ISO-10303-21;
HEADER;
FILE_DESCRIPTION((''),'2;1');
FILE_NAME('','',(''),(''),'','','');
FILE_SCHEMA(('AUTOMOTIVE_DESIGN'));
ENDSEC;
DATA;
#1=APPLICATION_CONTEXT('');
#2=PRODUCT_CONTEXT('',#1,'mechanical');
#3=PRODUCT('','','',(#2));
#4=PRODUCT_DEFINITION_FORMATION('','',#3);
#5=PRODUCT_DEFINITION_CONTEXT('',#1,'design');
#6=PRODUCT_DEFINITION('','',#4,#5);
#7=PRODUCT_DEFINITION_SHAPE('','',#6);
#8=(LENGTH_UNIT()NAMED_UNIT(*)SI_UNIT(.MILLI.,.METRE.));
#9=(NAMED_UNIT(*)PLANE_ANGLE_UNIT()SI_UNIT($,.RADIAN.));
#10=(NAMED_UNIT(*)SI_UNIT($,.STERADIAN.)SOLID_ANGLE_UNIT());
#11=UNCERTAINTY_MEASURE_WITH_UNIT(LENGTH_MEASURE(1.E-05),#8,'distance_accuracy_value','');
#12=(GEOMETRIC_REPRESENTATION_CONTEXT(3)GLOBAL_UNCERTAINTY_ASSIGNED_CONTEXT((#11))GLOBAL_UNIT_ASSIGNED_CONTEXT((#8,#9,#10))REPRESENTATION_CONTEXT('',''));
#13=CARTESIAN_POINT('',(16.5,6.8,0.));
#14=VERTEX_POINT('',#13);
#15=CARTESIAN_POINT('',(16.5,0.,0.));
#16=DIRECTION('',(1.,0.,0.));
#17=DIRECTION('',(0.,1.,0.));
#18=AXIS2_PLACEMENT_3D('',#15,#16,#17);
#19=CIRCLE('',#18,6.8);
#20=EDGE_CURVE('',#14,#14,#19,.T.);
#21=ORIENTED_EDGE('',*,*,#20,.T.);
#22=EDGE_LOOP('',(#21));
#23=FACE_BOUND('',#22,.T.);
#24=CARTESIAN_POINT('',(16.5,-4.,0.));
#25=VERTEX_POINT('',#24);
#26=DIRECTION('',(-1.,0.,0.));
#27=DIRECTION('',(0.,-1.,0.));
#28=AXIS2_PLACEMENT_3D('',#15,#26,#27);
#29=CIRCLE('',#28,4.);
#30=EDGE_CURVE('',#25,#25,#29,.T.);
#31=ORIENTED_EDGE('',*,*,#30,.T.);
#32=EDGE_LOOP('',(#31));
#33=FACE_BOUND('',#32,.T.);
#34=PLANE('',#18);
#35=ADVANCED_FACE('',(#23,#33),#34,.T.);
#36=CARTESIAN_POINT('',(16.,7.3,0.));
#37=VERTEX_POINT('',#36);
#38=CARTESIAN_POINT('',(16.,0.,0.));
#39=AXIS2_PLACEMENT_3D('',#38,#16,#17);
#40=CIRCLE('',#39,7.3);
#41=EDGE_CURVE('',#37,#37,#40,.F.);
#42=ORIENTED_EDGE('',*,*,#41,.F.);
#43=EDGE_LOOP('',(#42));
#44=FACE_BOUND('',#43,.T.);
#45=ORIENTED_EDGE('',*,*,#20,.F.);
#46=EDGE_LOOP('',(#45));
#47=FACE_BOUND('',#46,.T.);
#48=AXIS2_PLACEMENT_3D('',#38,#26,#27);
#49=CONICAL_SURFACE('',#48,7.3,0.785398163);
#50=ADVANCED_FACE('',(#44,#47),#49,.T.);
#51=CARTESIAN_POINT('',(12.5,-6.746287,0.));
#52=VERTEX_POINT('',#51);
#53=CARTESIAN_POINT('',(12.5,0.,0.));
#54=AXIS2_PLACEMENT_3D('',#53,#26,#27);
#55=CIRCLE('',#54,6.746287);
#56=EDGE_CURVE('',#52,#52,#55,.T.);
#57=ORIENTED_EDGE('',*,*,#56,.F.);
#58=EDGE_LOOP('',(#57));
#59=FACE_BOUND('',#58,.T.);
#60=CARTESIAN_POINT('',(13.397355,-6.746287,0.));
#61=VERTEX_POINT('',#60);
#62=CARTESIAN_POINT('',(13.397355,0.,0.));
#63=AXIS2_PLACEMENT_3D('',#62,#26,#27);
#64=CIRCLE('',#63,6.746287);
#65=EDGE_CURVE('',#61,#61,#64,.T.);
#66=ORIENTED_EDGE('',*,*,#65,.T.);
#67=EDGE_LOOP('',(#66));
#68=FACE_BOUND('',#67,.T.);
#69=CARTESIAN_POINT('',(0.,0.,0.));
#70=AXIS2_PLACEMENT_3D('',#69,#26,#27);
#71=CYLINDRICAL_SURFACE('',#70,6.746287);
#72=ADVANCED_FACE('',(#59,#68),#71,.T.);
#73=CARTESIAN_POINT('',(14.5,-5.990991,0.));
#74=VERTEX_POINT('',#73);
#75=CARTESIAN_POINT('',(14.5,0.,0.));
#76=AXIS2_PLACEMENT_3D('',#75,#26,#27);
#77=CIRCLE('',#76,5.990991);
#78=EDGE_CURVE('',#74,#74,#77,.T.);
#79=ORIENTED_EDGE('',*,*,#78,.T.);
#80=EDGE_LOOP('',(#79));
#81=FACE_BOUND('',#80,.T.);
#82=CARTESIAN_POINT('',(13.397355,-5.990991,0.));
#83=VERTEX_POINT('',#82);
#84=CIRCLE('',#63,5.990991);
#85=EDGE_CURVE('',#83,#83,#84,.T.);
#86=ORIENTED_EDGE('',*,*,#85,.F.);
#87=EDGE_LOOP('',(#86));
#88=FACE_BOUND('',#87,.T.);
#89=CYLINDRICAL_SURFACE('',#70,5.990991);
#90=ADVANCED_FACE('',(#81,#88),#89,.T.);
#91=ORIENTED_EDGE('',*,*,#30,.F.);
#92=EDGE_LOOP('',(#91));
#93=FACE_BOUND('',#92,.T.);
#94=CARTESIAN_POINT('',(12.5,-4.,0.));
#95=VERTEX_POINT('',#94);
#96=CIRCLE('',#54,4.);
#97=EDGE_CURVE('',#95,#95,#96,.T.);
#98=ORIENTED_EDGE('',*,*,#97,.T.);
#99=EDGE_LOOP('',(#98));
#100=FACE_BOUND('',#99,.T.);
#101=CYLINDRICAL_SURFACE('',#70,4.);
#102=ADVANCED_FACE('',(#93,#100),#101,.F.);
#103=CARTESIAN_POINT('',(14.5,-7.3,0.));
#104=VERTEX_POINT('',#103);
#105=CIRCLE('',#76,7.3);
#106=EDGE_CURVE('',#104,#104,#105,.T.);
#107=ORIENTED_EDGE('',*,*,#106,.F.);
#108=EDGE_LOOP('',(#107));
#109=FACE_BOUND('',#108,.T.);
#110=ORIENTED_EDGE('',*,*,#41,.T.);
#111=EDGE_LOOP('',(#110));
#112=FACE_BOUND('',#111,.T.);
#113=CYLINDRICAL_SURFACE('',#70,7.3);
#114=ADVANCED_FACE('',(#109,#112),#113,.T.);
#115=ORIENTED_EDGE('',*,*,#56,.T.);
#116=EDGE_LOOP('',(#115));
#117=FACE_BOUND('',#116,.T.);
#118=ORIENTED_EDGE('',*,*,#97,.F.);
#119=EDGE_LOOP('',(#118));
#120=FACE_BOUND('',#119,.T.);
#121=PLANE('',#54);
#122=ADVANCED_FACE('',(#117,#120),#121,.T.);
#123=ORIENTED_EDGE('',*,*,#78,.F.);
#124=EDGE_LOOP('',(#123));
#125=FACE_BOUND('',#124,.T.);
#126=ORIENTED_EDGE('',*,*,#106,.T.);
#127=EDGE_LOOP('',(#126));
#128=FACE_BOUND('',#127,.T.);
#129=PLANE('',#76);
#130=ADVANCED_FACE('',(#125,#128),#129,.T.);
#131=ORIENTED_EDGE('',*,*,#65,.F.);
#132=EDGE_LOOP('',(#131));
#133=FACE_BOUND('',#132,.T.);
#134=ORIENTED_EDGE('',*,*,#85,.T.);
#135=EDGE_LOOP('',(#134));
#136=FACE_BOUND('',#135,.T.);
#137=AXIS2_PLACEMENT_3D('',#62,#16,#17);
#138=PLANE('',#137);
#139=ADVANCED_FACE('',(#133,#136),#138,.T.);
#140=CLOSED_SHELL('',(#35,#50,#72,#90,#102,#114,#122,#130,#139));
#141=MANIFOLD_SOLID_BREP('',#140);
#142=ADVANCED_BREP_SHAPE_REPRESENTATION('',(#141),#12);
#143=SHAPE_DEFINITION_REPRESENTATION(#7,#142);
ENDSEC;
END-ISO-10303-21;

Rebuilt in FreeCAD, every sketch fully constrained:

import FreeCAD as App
import Part
import Sketcher
from FreeCAD import Vector


def edges_at(feature, points):
    """Names of the edges that pass closest to the given points."""
    edges = feature.Shape.Edges
    near = lambda p: min(range(len(edges)), key=lambda i: edges[i].distToShape(Part.Vertex(*p))[0])
    return sorted({f"Edge{near(p) + 1}" for p in points})

doc = App.newDocument("Part")
body = doc.addObject("PartDesign::Body", "Body")

sketch1 = body.newObject("Sketcher::SketchObject", "Sketch")
sketch1.AttachmentSupport = (doc.getObject("XY_Plane"), [""])
sketch1.MapMode = "FlatFace"
sketch1.addGeometry(Part.LineSegment(Vector(14.5, 7.3, 0), Vector(14.5, 6, 0)), False)
sketch1.addGeometry(Part.LineSegment(Vector(14.5, 6, 0), Vector(13.4, 6, 0)), False)
sketch1.addGeometry(Part.LineSegment(Vector(13.4, 6, 0), Vector(13.4, 6.7, 0)), False)
sketch1.addGeometry(Part.LineSegment(Vector(13.4, 6.7, 0), Vector(12.5, 6.7, 0)), False)
sketch1.addGeometry(Part.LineSegment(Vector(12.5, 6.7, 0), Vector(12.5, 4, 0)), False)
sketch1.addGeometry(Part.LineSegment(Vector(12.5, 4, 0), Vector(16.5, 4, 0)), False)
sketch1.addGeometry(Part.LineSegment(Vector(16.5, 4, 0), Vector(16.5, 7.3, 0)), False)
sketch1.addGeometry(Part.LineSegment(Vector(16.5, 7.3, 0), Vector(14.5, 7.3, 0)), False)
sketch1.addConstraint(Sketcher.Constraint("Coincident", 0, 2, 1, 1))
sketch1.addConstraint(Sketcher.Constraint("Coincident", 1, 2, 2, 1))
sketch1.addConstraint(Sketcher.Constraint("Coincident", 2, 2, 3, 1))
sketch1.addConstraint(Sketcher.Constraint("Coincident", 3, 2, 4, 1))
sketch1.addConstraint(Sketcher.Constraint("Coincident", 4, 2, 5, 1))
sketch1.addConstraint(Sketcher.Constraint("Coincident", 5, 2, 6, 1))
sketch1.addConstraint(Sketcher.Constraint("Coincident", 6, 2, 7, 1))
sketch1.addConstraint(Sketcher.Constraint("Coincident", 7, 2, 0, 1))
sketch1.addConstraint(Sketcher.Constraint("Vertical", 0))
sketch1.addConstraint(Sketcher.Constraint("Horizontal", 1))
sketch1.addConstraint(Sketcher.Constraint("Vertical", 2))
sketch1.addConstraint(Sketcher.Constraint("Horizontal", 3))
sketch1.addConstraint(Sketcher.Constraint("Vertical", 4))
sketch1.addConstraint(Sketcher.Constraint("Horizontal", 5))
sketch1.addConstraint(Sketcher.Constraint("Vertical", 6))
sketch1.addConstraint(Sketcher.Constraint("Horizontal", 7))
sketch1.addConstraint(Sketcher.Constraint("DistanceX", 5, 1, 5, 2, 4.0))
sketch1.addConstraint(Sketcher.Constraint("DistanceX", 7, 2, 7, 1, 2.0))
sketch1.addConstraint(Sketcher.Constraint("DistanceY", 6, 1, 6, 2, 3.3))
sketch1.addConstraint(Sketcher.Constraint("DistanceY", -1, 1, 4, 2, 4.0))
sketch1.addConstraint(Sketcher.Constraint("DistanceX", -1, 1, 0, 2, 14.5))
sketch1.addConstraint(Sketcher.Constraint("DistanceY", 0, 2, 0, 1, 1.309009))
sketch1.addConstraint(Sketcher.Constraint("DistanceX", 1, 2, 1, 1, 1.102645))
sketch1.addConstraint(Sketcher.Constraint("DistanceY", 2, 1, 2, 2, 0.755296))
revolution = body.newObject("PartDesign::Revolution", "Revolution")
revolution.Profile = sketch1
revolution.ReferenceAxis = (sketch1, ["H_Axis"])
revolution.Angle = 360
doc.recompute()

chamfer = body.newObject("PartDesign::Chamfer", "Chamfer")
chamfer.Base = (revolution, edges_at(revolution, [(16.5, 7.3, 0)]))
chamfer.Size = 0.5

doc.recompute()
